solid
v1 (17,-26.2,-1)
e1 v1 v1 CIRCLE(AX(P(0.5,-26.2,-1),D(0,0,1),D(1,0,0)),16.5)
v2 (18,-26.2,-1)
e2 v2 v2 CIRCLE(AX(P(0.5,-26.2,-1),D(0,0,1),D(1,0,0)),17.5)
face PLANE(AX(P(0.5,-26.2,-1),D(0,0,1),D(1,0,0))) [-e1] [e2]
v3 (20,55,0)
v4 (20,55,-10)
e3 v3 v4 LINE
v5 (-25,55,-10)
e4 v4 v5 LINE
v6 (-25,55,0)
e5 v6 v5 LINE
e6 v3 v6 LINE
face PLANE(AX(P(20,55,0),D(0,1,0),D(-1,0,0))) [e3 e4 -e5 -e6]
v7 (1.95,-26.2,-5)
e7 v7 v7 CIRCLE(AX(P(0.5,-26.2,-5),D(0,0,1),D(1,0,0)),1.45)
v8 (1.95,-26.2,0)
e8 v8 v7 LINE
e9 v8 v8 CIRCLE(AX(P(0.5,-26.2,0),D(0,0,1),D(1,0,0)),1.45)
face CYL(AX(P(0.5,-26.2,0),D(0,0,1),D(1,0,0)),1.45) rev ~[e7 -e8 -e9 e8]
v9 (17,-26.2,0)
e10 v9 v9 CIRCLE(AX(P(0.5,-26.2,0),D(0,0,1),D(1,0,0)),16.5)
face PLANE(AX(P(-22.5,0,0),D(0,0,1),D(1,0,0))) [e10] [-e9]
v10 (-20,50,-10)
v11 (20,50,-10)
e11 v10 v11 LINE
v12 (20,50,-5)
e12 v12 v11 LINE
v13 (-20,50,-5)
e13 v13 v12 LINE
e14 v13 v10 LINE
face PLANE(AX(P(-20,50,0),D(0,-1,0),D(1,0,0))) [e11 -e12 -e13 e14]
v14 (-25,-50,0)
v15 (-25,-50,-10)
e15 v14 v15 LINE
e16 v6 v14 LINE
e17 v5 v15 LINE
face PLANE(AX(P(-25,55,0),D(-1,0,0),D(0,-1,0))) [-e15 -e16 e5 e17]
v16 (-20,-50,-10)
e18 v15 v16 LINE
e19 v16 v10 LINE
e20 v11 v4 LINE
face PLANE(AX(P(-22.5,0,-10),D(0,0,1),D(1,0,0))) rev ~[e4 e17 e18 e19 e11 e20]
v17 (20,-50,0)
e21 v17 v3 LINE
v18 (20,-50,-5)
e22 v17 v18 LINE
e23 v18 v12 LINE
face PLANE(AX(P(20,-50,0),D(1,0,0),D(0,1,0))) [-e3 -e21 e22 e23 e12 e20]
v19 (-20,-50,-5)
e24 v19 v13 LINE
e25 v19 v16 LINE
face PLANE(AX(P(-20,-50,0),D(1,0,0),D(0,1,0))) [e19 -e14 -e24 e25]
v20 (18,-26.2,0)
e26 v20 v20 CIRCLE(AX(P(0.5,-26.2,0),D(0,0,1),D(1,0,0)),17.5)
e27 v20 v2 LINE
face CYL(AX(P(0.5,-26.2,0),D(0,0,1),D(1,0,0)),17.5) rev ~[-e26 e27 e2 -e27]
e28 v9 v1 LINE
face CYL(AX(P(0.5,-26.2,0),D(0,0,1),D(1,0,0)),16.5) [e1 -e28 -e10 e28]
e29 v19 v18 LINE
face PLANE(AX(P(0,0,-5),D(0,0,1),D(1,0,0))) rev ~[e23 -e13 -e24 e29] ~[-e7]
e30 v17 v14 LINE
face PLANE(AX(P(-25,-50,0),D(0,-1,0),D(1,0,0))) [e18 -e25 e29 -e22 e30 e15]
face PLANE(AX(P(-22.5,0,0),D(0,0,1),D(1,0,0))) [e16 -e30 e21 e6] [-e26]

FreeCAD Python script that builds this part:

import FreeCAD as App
import Part
import Sketcher

V = App.Vector

doc = App.newDocument("Part")
body = doc.addObject("PartDesign::Body", "Body")

sketch1 = body.newObject("Sketcher::SketchObject", "Sketch")
sketch1.AttachmentSupport = (doc.getObject("XY_Plane"), [""])
sketch1.MapMode = "FlatFace"
sketch1.addGeometry(Part.LineSegment(V(-20, 50, 0), V(-20, -50, 0)), False)
sketch1.addGeometry(Part.LineSegment(V(-20, -50, 0), V(20, -50, 0)), False)
sketch1.addGeometry(Part.LineSegment(V(20, -50, 0), V(20, 50, 0)), False)
sketch1.addGeometry(Part.LineSegment(V(20, 50, 0), V(-20, 50, 0)), False)
sketch1.addGeometry(Part.Circle(V(0.5, -26.2, 0), V(0, 0, 1), 1.45), False)
sketch1.addConstraint(Sketcher.Constraint("Coincident", 0, 2, 1, 1))
sketch1.addConstraint(Sketcher.Constraint("Coincident", 1, 2, 2, 1))
sketch1.addConstraint(Sketcher.Constraint("Coincident", 2, 2, 3, 1))
sketch1.addConstraint(Sketcher.Constraint("Coincident", 3, 2, 0, 1))
sketch1.addConstraint(Sketcher.Constraint("Vertical", 0))
sketch1.addConstraint(Sketcher.Constraint("Horizontal", 1))
sketch1.addConstraint(Sketcher.Constraint("Vertical", 2))
sketch1.addConstraint(Sketcher.Constraint("Horizontal", 3))
sketch1.addConstraint(Sketcher.Constraint("Symmetric", 0, 2, 2, 2, -1, 1))
sketch1.addConstraint(Sketcher.Constraint("Diameter", 4, 2.9))
sketch1.addConstraint(Sketcher.Constraint("DistanceX", 1, 1, 1, 2, 40.0))
sketch1.addConstraint(Sketcher.Constraint("DistanceY", 0, 2, 0, 1, 100.0))
sketch1.addConstraint(Sketcher.Constraint("DistanceX", -1, 1, 4, 3, 0.5))
sketch1.addConstraint(Sketcher.Constraint("DistanceY", 4, 3, -1, 1, 26.2))
pad1 = body.newObject("PartDesign::Pad", "Pad")
pad1.Profile = sketch1
pad1.Length = 5
pad1.Reversed = True

sketch2 = body.newObject("Sketcher::SketchObject", "Sketch001")
sketch2.AttachmentSupport = (doc.getObject("XY_Plane"), [""])
sketch2.MapMode = "FlatFace"
sketch2.addGeometry(Part.LineSegment(V(-25, -50, 0), V(-20, -50, 0)), False)
sketch2.addGeometry(Part.LineSegment(V(-20, -50, 0), V(-20, 50, 0)), False)
sketch2.addGeometry(Part.LineSegment(V(-20, 50, 0), V(20, 50, 0)), False)
sketch2.addGeometry(Part.LineSegment(V(20, 50, 0), V(20, 55, 0)), False)
sketch2.addGeometry(Part.LineSegment(V(20, 55, 0), V(-25, 55, 0)), False)
sketch2.addGeometry(Part.LineSegment(V(-25, 55, 0), V(-25, -50, 0)), False)
sketch2.addConstraint(Sketcher.Constraint("Coincident", 0, 2, 1, 1))
sketch2.addConstraint(Sketcher.Constraint("Coincident", 1, 2, 2, 1))
sketch2.addConstraint(Sketcher.Constraint("Coincident", 2, 2, 3, 1))
sketch2.addConstraint(Sketcher.Constraint("Coincident", 3, 2, 4, 1))
sketch2.addConstraint(Sketcher.Constraint("Coincident", 4, 2, 5, 1))
sketch2.addConstraint(Sketcher.Constraint("Coincident", 5, 2, 0, 1))
sketch2.addConstraint(Sketcher.Constraint("Horizontal", 0))
sketch2.addConstraint(Sketcher.Constraint("Vertical", 1))
sketch2.addConstraint(Sketcher.Constraint("Horizontal", 2))
sketch2.addConstraint(Sketcher.Constraint("Vertical", 3))
sketch2.addConstraint(Sketcher.Constraint("Horizontal", 4))
sketch2.addConstraint(Sketcher.Constraint("Vertical", 5))
sketch2.addConstraint(Sketcher.Constraint("Symmetric", 0, 2, 2, 2, -1, 1))
sketch2.addConstraint(Sketcher.Constraint("Equal", 0, 3))
sketch2.addConstraint(Sketcher.Constraint("DistanceX", 0, 1, 0, 2, 5.0))
sketch2.addConstraint(Sketcher.Constraint("DistanceX", 2, 1, 2, 2, 40.0))
sketch2.addConstraint(Sketcher.Constraint("DistanceY", 1, 1, 1, 2, 100.0))
pad2 = body.newObject("PartDesign::Pad", "Pad001")
pad2.Profile = sketch2
pad2.Length = 10
pad2.Reversed = True

sketch3 = body.newObject("Sketcher::SketchObject", "Sketch002")
sketch3.AttachmentSupport = (doc.getObject("XY_Plane"), [""])
sketch3.MapMode = "FlatFace"
sketch3.addGeometry(Part.Circle(V(0.5, -26.2, 0), V(0, 0, 1), 17.5), False)
sketch3.addGeometry(Part.Circle(V(0.5, -26.2, 0), V(0, 0, 1), 16.5), False)
sketch3.addConstraint(Sketcher.Constraint("Coincident", 1, 3, 0, 3))
sketch3.addConstraint(Sketcher.Constraint("Diameter", 0, 35.0))
sketch3.addConstraint(Sketcher.Constraint("Diameter", 1, 33.0))
sketch3.addConstraint(Sketcher.Constraint("DistanceX", -1, 1, 0, 3, 0.5))
sketch3.addConstraint(Sketcher.Constraint("DistanceY", 0, 3, -1, 1, 26.2))
pocket1 = body.newObject("PartDesign::Pocket", "Pocket")
pocket1.Profile = sketch3
pocket1.Length = 1

doc.recompute()
